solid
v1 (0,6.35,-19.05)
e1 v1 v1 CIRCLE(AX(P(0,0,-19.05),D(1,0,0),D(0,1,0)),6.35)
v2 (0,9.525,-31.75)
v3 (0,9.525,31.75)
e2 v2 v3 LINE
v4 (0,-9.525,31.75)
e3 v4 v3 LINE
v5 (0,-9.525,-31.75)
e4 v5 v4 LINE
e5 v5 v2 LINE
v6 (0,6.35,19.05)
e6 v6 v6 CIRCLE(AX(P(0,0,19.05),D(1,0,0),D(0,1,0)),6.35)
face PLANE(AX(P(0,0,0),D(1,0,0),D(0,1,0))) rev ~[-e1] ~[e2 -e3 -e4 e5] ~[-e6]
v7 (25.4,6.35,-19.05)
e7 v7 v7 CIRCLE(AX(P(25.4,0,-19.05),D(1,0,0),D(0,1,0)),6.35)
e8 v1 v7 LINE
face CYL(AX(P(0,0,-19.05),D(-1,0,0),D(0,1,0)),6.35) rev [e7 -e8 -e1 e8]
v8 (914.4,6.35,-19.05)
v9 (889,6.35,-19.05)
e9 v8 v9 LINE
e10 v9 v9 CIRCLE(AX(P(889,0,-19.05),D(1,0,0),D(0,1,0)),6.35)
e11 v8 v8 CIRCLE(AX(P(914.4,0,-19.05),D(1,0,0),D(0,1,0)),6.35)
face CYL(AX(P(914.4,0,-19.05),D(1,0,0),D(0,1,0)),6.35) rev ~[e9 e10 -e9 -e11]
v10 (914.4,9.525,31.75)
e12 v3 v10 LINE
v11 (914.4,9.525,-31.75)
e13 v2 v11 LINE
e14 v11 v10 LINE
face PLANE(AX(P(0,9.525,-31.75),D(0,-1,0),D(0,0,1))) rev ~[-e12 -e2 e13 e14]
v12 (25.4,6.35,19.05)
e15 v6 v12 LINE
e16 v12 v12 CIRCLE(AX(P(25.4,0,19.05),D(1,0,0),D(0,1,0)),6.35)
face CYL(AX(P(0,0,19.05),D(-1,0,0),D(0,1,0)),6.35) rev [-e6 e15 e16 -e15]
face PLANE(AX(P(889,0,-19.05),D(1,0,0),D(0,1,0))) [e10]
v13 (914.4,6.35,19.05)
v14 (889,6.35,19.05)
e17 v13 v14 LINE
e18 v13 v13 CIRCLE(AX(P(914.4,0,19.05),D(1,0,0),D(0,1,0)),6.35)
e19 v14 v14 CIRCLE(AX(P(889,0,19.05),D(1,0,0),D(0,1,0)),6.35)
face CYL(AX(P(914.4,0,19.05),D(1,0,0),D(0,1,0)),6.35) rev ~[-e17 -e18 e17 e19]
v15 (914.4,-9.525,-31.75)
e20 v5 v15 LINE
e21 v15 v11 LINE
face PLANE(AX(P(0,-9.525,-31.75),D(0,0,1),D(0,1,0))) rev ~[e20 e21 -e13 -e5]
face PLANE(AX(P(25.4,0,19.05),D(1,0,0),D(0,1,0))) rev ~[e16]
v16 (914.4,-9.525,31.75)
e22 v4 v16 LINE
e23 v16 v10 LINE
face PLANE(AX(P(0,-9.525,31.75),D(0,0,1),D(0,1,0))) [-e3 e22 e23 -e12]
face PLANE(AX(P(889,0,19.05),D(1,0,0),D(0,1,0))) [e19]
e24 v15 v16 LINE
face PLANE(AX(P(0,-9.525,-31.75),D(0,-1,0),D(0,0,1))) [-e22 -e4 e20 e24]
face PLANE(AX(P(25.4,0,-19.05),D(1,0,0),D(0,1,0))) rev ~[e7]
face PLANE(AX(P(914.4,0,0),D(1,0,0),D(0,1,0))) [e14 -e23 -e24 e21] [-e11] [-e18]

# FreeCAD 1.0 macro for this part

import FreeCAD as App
import Part
import Sketcher
from FreeCAD import Vector
Q = App.Units.Quantity


def add_polygon(sketch, points):
    """Adds a closed chain of lines whose ends are joined by coincident constraints."""
    first, n = sketch.GeometryCount, len(points)
    for a, b in zip(points, points[1:] + points[:1]):
        sketch.addGeometry(Part.LineSegment(App.Vector(*a, 0), App.Vector(*b, 0)), False)
    for i in range(n):
        sketch.addConstraint(Sketcher.Constraint("Coincident", first + i, 2, first + (i + 1) % n, 1))

doc = App.newDocument("Part")
body = doc.addObject("PartDesign::Body", "Body")

# Sketch on YZ plane
sketch1 = doc.addObject("Sketcher::SketchObject", "Sketch")
body.addObject(sketch1)
sketch1.AttachmentSupport = (doc.YZ_Plane, [""])
sketch1.MapMode = "FlatFace"
add_polygon(sketch1, [(-9.525, 31.75), (-9.525, -31.75), (9.525, -31.75), (9.525, 31.75)])  # lines 0-3
sketch1.addConstraint(Sketcher.Constraint("Vertical", 0))
sketch1.addConstraint(Sketcher.Constraint("Horizontal", 1))
sketch1.addConstraint(Sketcher.Constraint("Vertical", 2))
sketch1.addConstraint(Sketcher.Constraint("Horizontal", 3))
sketch1.addConstraint(Sketcher.Constraint("Symmetric", 0, 2, 2, 2, -1, 1))
sketch1.addConstraint(Sketcher.Constraint("DistanceY", 0, 2, 0, 1, Q("2.5 in")))
sketch1.addConstraint(Sketcher.Constraint("DistanceX", 1, 1, 1, 2, Q("0.75 in")))
pad1 = doc.addObject("PartDesign::Pad", "Pad")
body.addObject(pad1)
pad1.Profile = sketch1
pad1.Length = Q("36 in")

# Sketch on YZ plane
sketch2 = doc.addObject("Sketcher::SketchObject", "Sketch001")
body.addObject(sketch2)
sketch2.AttachmentSupport = (doc.YZ_Plane, [""])
sketch2.MapMode = "FlatFace"
sketch2.addGeometry(Part.Circle(Vector(0, 19.05, 0), Vector(0, 0, 1), 6.35), False)
sketch2.addGeometry(Part.Circle(Vector(0, -19.05, 0), Vector(0, 0, 1), 6.35), False)
sketch2.addConstraint(Sketcher.Constraint("Equal", 0, 1))
sketch2.addConstraint(Sketcher.Constraint("Symmetric", 0, 3, 1, 3, -1, 1))
sketch2.addConstraint(Sketcher.Constraint("PointOnObject", 0, 3, -2))
sketch2.addConstraint(Sketcher.Constraint("Diameter", 0, Q("0.5 in")))
sketch2.addConstraint(Sketcher.Constraint("DistanceY", 1, 3, 0, 3, Q("1.5 in")))
pocket1 = doc.addObject("PartDesign::Pocket", "Pocket")
body.addObject(pocket1)
pocket1.Profile = sketch2
pocket1.Length = Q("1 in")
pocket1.Reversed = True

# Sketch on YZ plane
sketch3 = doc.addObject("Sketcher::SketchObject", "Sketch002")
body.addObject(sketch3)
sketch3.AttachmentSupport = (doc.YZ_Plane, [""])
sketch3.MapMode = "FlatFace"
sketch3.AttachmentOffset = App.Placement(Vector(0, 0, 36 * 25.4), App.Rotation())
sketch3.addGeometry(Part.Circle(Vector(0, 19.05, 0), Vector(0, 0, 1), 6.35), False)
sketch3.addGeometry(Part.Circle(Vector(0, -19.05, 0), Vector(0, 0, 1), 6.35), False)
sketch3.addConstraint(Sketcher.Constraint("Equal", 0, 1))
sketch3.addConstraint(Sketcher.Constraint("Symmetric", 0, 3, 1, 3, -1, 1))
sketch3.addConstraint(Sketcher.Constraint("PointOnObject", 0, 3, -2))
sketch3.addConstraint(Sketcher.Constraint("Diameter", 0, Q("0.5 in")))
sketch3.addConstraint(Sketcher.Constraint("DistanceY", 1, 3, 0, 3, Q("1.5 in")))
pocket2 = doc.addObject("PartDesign::Pocket", "Pocket001")
body.addObject(pocket2)
pocket2.Profile = sketch3
pocket2.Length = Q("1 in")

doc.recompute()
